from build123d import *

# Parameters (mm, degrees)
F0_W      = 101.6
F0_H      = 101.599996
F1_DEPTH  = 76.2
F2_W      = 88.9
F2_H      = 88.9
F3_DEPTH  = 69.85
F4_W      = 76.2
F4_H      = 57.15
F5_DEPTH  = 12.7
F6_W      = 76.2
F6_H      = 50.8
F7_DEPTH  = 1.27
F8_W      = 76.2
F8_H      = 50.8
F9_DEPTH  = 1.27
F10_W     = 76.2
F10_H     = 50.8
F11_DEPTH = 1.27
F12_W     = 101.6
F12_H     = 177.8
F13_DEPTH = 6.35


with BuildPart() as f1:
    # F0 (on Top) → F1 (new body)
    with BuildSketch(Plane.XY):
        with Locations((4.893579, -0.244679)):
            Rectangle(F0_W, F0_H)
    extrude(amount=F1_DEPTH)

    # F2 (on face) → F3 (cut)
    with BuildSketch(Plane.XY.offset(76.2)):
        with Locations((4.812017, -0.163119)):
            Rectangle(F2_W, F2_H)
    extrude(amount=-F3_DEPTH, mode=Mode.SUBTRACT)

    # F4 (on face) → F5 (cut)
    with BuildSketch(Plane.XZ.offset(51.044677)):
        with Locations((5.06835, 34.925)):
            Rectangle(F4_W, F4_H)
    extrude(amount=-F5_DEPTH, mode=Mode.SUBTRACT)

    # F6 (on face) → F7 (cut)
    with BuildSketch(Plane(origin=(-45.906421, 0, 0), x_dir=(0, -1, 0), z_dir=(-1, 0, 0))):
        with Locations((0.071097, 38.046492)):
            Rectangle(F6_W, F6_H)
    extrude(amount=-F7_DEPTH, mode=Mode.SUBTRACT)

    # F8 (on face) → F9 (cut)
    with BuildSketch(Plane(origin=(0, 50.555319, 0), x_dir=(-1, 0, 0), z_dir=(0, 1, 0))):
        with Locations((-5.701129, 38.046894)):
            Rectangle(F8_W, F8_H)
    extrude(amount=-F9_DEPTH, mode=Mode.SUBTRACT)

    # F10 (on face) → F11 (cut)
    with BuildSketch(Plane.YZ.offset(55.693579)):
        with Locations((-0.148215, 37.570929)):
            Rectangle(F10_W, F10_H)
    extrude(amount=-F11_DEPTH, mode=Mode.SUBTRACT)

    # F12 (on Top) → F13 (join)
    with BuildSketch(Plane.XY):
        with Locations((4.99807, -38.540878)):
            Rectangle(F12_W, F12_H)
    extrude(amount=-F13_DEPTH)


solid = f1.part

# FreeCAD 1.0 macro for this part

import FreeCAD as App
import Part
import Sketcher

V = App.Vector
Q = App.Units.Quantity

doc = App.newDocument("Part")
params = doc.addObject("Spreadsheet::Sheet", "Params")
for row, (alias, value) in enumerate([
    ("sketch1_width", "4 in"),
    ("sketch1_height", "3.9999998 in"),
    ("pad1_length", "3 in"),
    ("sketch2_width", "3.5 in"),
    ("pocket1_length", "2.75 in"),
    ("sketch3_width", "3 in"),
    ("sketch3_height", "2.25 in"),
    ("pocket2_length", "0.5 in"),
    ("sketch4_width", "3 in"),
    ("sketch4_height", "2 in"),
    ("pocket3_length", "0.05 in"),
    ("sketch5_width", "3 in"),
    ("sketch5_height", "2 in"),
    ("pocket4_length", "0.05 in"),
    ("sketch6_width", "3 in"),
    ("sketch6_height", "2 in"),
    ("pocket5_length", "0.05 in"),
    ("sketch7_width", "4 in"),
    ("sketch7_height", "7 in"),
    ("pad2_length", "0.25 in"),
], start=1):
    params.set(f"A{row}", alias)
    params.set(f"B{row}", "=" + value)
    params.setAlias(f"B{row}", alias)

body = doc.addObject("PartDesign::Body", "Body")

sketch1 = doc.addObject("Sketcher::SketchObject", "Sketch")
body.addObject(sketch1)
sketch1.AttachmentSupport = (doc.XY_Plane, [""])
sketch1.MapMode = "FlatFace"
sketch1.addGeometry([
    Part.LineSegment(V(-45.906421, 50.555319, 0), V(-45.906421, -51.044677, 0)),
    Part.LineSegment(V(-45.906421, -51.044677, 0), V(55.693579, -51.044677, 0)),
    Part.LineSegment(V(55.693579, -51.044677, 0), V(55.693579, 50.555319, 0)),
    Part.LineSegment(V(55.693579, 50.555319, 0), V(-45.906421, 50.555319, 0)),
], False)
sketch1.addConstraint([
    Sketcher.Constraint("Coincident", 0, 2, 1, 1),
    Sketcher.Constraint("Coincident", 1, 2, 2, 1),
    Sketcher.Constraint("Coincident", 2, 2, 3, 1),
    Sketcher.Constraint("Coincident", 3, 2, 0, 1),
    Sketcher.Constraint("Vertical", 0),
    Sketcher.Constraint("Horizontal", 1),
    Sketcher.Constraint("Vertical", 2),
    Sketcher.Constraint("Horizontal", 3),
    Sketcher.Constraint("DistanceX", 1, 1, 1, 2, Q("4 in")),
    Sketcher.Constraint("DistanceY", 0, 2, 0, 1, Q("3.9999998 in")),
    Sketcher.Constraint("DistanceX", 0, 2, -1, 1, Q("45.906421 mm")),
    Sketcher.Constraint("DistanceY", -1, 1, 2, 2, Q("50.555319 mm")),
])
sketch1.setExpression("Constraints[8]", "Params.sketch1_width")
sketch1.setExpression("Constraints[9]", "Params.sketch1_height")
pad1 = doc.addObject("PartDesign::Pad", "Pad")
body.addObject(pad1)
pad1.Profile = sketch1
pad1.setExpression("Length", "Params.pad1_length")

sketch2 = doc.addObject("Sketcher::SketchObject", "Sketch001")
body.addObject(sketch2)
sketch2.AttachmentSupport = (doc.XY_Plane, [""])
sketch2.MapMode = "FlatFace"
sketch2.AttachmentOffset = App.Placement(V(0, 0, 3 * 25.4), App.Rotation())
sketch2.addGeometry([
    Part.LineSegment(V(-39.637983, 44.286881, 0), V(-39.637983, -44.613119, 0)),
    Part.LineSegment(V(-39.637983, -44.613119, 0), V(49.262017, -44.613119, 0)),
    Part.LineSegment(V(49.262017, -44.613119, 0), V(49.262017, 44.286881, 0)),
    Part.LineSegment(V(49.262017, 44.286881, 0), V(-39.637983, 44.286881, 0)),
], False)
sketch2.addConstraint([
    Sketcher.Constraint("Coincident", 0, 2, 1, 1),
    Sketcher.Constraint("Coincident", 1, 2, 2, 1),
    Sketcher.Constraint("Coincident", 2, 2, 3, 1),
    Sketcher.Constraint("Coincident", 3, 2, 0, 1),
    Sketcher.Constraint("Vertical", 0),
    Sketcher.Constraint("Horizontal", 1),
    Sketcher.Constraint("Vertical", 2),
    Sketcher.Constraint("Horizontal", 3),
    Sketcher.Constraint("Equal", 3, 0),
    Sketcher.Constraint("DistanceX", 1, 1, 1, 2, Q("3.5 in")),
    Sketcher.Constraint("DistanceY", 0, 2, -1, 1, Q("44.613119 mm")),
    Sketcher.Constraint("DistanceX", 0, 2, -1, 1, Q("39.637983 mm")),
])
sketch2.setExpression("Constraints[9]", "Params.sketch2_width")
pocket1 = doc.addObject("PartDesign::Pocket", "Pocket")
body.addObject(pocket1)
pocket1.Profile = sketch2
pocket1.setExpression("Length", "Params.pocket1_length")

sketch3 = doc.addObject("Sketcher::SketchObject", "Sketch002")
body.addObject(sketch3)
sketch3.AttachmentSupport = (doc.XZ_Plane, [""])
sketch3.MapMode = "FlatFace"
sketch3.AttachmentOffset = App.Placement(V(0, 0, 51.044677), App.Rotation())
sketch3.addGeometry([
    Part.LineSegment(V(-33.03165, 63.5, 0), V(-33.03165, 6.35, 0)),
    Part.LineSegment(V(-33.03165, 6.35, 0), V(43.16835, 6.35, 0)),
    Part.LineSegment(V(43.16835, 6.35, 0), V(43.16835, 63.5, 0)),
    Part.LineSegment(V(43.16835, 63.5, 0), V(-33.03165, 63.5, 0)),
], False)
sketch3.addConstraint([
    Sketcher.Constraint("Coincident", 0, 2, 1, 1),
    Sketcher.Constraint("Coincident", 1, 2, 2, 1),
    Sketcher.Constraint("Coincident", 2, 2, 3, 1),
    Sketcher.Constraint("Coincident", 3, 2, 0, 1),
    Sketcher.Constraint("Vertical", 0),
    Sketcher.Constraint("Horizontal", 1),
    Sketcher.Constraint("Vertical", 2),
    Sketcher.Constraint("Horizontal", 3),
    Sketcher.Constraint("DistanceX", 1, 1, 1, 2, Q("3 in")),
    Sketcher.Constraint("DistanceY", 0, 2, 0, 1, Q("2.25 in")),
    Sketcher.Constraint("DistanceY", -1, 1, 2, 2, Q("2.5 in")),
    Sketcher.Constraint("DistanceX", 0, 2, -1, 1, Q("33.03165 mm")),
])
sketch3.setExpression("Constraints[8]", "Params.sketch3_width")
sketch3.setExpression("Constraints[9]", "Params.sketch3_height")
pocket2 = doc.addObject("PartDesign::Pocket", "Pocket001")
body.addObject(pocket2)
pocket2.Profile = sketch3
pocket2.setExpression("Length", "Params.pocket2_length")

sketch4 = doc.addObject("Sketcher::SketchObject", "Sketch003")
body.addObject(sketch4)
sketch4.AttachmentSupport = (doc.YZ_Plane, [""])
sketch4.MapMode = "FlatFace"
sketch4.AttachmentOffset = App.Placement(V(0, 0, -45.906421), App.Rotation())
sketch4.addGeometry([
    Part.LineSegment(V(38.028903, 63.446492, 0), V(38.028903, 12.646492, 0)),
    Part.LineSegment(V(38.028903, 12.646492, 0), V(-38.171097, 12.646492, 0)),
    Part.LineSegment(V(-38.171097, 12.646492, 0), V(-38.171097, 63.446492, 0)),
    Part.LineSegment(V(-38.171097, 63.446492, 0), V(38.028903, 63.446492, 0)),
], False)
sketch4.addConstraint([
    Sketcher.Constraint("Coincident", 0, 2, 1, 1),
    Sketcher.Constraint("Coincident", 1, 2, 2, 1),
    Sketcher.Constraint("Coincident", 2, 2, 3, 1),
    Sketcher.Constraint("Coincident", 3, 2, 0, 1),
    Sketcher.Constraint("Vertical", 0),
    Sketcher.Constraint("Horizontal", 1),
    Sketcher.Constraint("Vertical", 2),
    Sketcher.Constraint("Horizontal", 3),
    Sketcher.Constraint("DistanceX", 1, 2, 1, 1, Q("3 in")),
    Sketcher.Constraint("DistanceY", 0, 2, 0, 1, Q("2 in")),
    Sketcher.Constraint("DistanceX", -1, 1, 0, 2, Q("38.028903 mm")),
    Sketcher.Constraint("DistanceY", -1, 1, 0, 2, Q("12.646492 mm")),
])
sketch4.setExpression("Constraints[8]", "Params.sketch4_width")
sketch4.setExpression("Constraints[9]", "Params.sketch4_height")
pocket3 = doc.addObject("PartDesign::Pocket", "Pocket002")
body.addObject(pocket3)
pocket3.Profile = sketch4
pocket3.setExpression("Length", "Params.pocket3_length")
pocket3.Reversed = True

sketch5 = doc.addObject("Sketcher::SketchObject", "Sketch004")
body.addObject(sketch5)
sketch5.AttachmentSupport = (doc.XZ_Plane, [""])
sketch5.MapMode = "FlatFace"
sketch5.AttachmentOffset = App.Placement(V(0, 0, -50.555319), App.Rotation())
sketch5.addGeometry([
    Part.LineSegment(V(43.801129, 63.446894, 0), V(43.801129, 12.646894, 0)),
    Part.LineSegment(V(43.801129, 12.646894, 0), V(-32.398871, 12.646894, 0)),
    Part.LineSegment(V(-32.398871, 12.646894, 0), V(-32.398871, 63.446894, 0)),
    Part.LineSegment(V(-32.398871, 63.446894, 0), V(43.801129, 63.446894, 0)),
], False)
sketch5.addConstraint([
    Sketcher.Constraint("Coincident", 0, 2, 1, 1),
    Sketcher.Constraint("Coincident", 1, 2, 2, 1),
    Sketcher.Constraint("Coincident", 2, 2, 3, 1),
    Sketcher.Constraint("Coincident", 3, 2, 0, 1),
    Sketcher.Constraint("Vertical", 0),
    Sketcher.Constraint("Horizontal", 1),
    Sketcher.Constraint("Vertical", 2),
    Sketcher.Constraint("Horizontal", 3),
    Sketcher.Constraint("DistanceX", 1, 2, 1, 1, Q("3 in")),
    Sketcher.Constraint("DistanceY", 0, 2, 0, 1, Q("2 in")),
    Sketcher.Constraint("DistanceX", -1, 1, 0, 2, Q("43.801129 mm")),
    Sketcher.Constraint("DistanceY", -1, 1, 0, 2, Q("12.646894 mm")),
])
sketch5.setExpression("Constraints[8]", "Params.sketch5_width")
sketch5.setExpression("Constraints[9]", "Params.sketch5_height")
pocket4 = doc.addObject("PartDesign::Pocket", "Pocket003")
body.addObject(pocket4)
pocket4.Profile = sketch5
pocket4.setExpression("Length", "Params.pocket4_length")
pocket4.Reversed = True

sketch6 = doc.addObject("Sketcher::SketchObject", "Sketch005")
body.addObject(sketch6)
sketch6.AttachmentSupport = (doc.YZ_Plane, [""])
sketch6.MapMode = "FlatFace"
sketch6.AttachmentOffset = App.Placement(V(0, 0, 55.693579), App.Rotation())
sketch6.addGeometry([
    Part.LineSegment(V(-38.248215, 62.970929, 0), V(-38.248215, 12.170929, 0)),
    Part.LineSegment(V(-38.248215, 12.170929, 0), V(37.951785, 12.170929, 0)),
    Part.LineSegment(V(37.951785, 12.170929, 0), V(37.951785, 62.970929, 0)),
    Part.LineSegment(V(37.951785, 62.970929, 0), V(-38.248215, 62.970929, 0)),
], False)
sketch6.addConstraint([
    Sketcher.Constraint("Coincident", 0, 2, 1, 1),
    Sketcher.Constraint("Coincident", 1, 2, 2, 1),
    Sketcher.Constraint("Coincident", 2, 2, 3, 1),
    Sketcher.Constraint("Coincident", 3, 2, 0, 1),
    Sketcher.Constraint("Vertical", 0),
    Sketcher.Constraint("Horizontal", 1),
    Sketcher.Constraint("Vertical", 2),
    Sketcher.Constraint("Horizontal", 3),
    Sketcher.Constraint("DistanceX", 1, 1, 1, 2, Q("3 in")),
    Sketcher.Constraint("DistanceY", 0, 2, 0, 1, Q("2 in")),
    Sketcher.Constraint("DistanceY", -1, 1, 0, 2, Q("12.170929 mm")),
    Sketcher.Constraint("DistanceX", 0, 2, -1, 1, Q("38.248215 mm")),
])
sketch6.setExpression("Constraints[8]", "Params.sketch6_width")
sketch6.setExpression("Constraints[9]", "Params.sketch6_height")
pocket5 = doc.addObject("PartDesign::Pocket", "Pocket004")
body.addObject(pocket5)
pocket5.Profile = sketch6
pocket5.setExpression("Length", "Params.pocket5_length")

sketch7 = doc.addObject("Sketcher::SketchObject", "Sketch006")
body.addObject(sketch7)
sketch7.AttachmentSupport = (doc.XY_Plane, [""])
sketch7.MapMode = "FlatFace"
sketch7.addGeometry([
    Part.LineSegment(V(-45.80193, 50.359122, 0), V(-45.80193, -127.440878, 0)),
    Part.LineSegment(V(-45.80193, -127.440878, 0), V(55.79807, -127.440878, 0)),
    Part.LineSegment(V(55.79807, -127.440878, 0), V(55.79807, 50.359122, 0)),
    Part.LineSegment(V(55.79807, 50.359122, 0), V(-45.80193, 50.359122, 0)),
], False)
sketch7.addConstraint([
    Sketcher.Constraint("Coincident", 0, 2, 1, 1),
    Sketcher.Constraint("Coincident", 1, 2, 2, 1),
    Sketcher.Constraint("Coincident", 2, 2, 3, 1),
    Sketcher.Constraint("Coincident", 3, 2, 0, 1),
    Sketcher.Constraint("Vertical", 0),
    Sketcher.Constraint("Horizontal", 1),
    Sketcher.Constraint("Vertical", 2),
    Sketcher.Constraint("Horizontal", 3),
    Sketcher.Constraint("DistanceX", 1, 1, 1, 2, Q("4 in")),
    Sketcher.Constraint("DistanceY", 0, 2, 0, 1, Q("7 in")),
    Sketcher.Constraint("DistanceX", 0, 2, -1, 1, Q("45.80193 mm")),
    Sketcher.Constraint("DistanceY", 0, 2, -1, 1, Q("127.440878 mm")),
])
sketch7.setExpression("Constraints[8]", "Params.sketch7_width")
sketch7.setExpression("Constraints[9]", "Params.sketch7_height")
pad2 = doc.addObject("PartDesign::Pad", "Pad001")
body.addObject(pad2)
pad2.Profile = sketch7
pad2.setExpression("Length", "Params.pad2_length")
pad2.Reversed = True

doc.recompute()
